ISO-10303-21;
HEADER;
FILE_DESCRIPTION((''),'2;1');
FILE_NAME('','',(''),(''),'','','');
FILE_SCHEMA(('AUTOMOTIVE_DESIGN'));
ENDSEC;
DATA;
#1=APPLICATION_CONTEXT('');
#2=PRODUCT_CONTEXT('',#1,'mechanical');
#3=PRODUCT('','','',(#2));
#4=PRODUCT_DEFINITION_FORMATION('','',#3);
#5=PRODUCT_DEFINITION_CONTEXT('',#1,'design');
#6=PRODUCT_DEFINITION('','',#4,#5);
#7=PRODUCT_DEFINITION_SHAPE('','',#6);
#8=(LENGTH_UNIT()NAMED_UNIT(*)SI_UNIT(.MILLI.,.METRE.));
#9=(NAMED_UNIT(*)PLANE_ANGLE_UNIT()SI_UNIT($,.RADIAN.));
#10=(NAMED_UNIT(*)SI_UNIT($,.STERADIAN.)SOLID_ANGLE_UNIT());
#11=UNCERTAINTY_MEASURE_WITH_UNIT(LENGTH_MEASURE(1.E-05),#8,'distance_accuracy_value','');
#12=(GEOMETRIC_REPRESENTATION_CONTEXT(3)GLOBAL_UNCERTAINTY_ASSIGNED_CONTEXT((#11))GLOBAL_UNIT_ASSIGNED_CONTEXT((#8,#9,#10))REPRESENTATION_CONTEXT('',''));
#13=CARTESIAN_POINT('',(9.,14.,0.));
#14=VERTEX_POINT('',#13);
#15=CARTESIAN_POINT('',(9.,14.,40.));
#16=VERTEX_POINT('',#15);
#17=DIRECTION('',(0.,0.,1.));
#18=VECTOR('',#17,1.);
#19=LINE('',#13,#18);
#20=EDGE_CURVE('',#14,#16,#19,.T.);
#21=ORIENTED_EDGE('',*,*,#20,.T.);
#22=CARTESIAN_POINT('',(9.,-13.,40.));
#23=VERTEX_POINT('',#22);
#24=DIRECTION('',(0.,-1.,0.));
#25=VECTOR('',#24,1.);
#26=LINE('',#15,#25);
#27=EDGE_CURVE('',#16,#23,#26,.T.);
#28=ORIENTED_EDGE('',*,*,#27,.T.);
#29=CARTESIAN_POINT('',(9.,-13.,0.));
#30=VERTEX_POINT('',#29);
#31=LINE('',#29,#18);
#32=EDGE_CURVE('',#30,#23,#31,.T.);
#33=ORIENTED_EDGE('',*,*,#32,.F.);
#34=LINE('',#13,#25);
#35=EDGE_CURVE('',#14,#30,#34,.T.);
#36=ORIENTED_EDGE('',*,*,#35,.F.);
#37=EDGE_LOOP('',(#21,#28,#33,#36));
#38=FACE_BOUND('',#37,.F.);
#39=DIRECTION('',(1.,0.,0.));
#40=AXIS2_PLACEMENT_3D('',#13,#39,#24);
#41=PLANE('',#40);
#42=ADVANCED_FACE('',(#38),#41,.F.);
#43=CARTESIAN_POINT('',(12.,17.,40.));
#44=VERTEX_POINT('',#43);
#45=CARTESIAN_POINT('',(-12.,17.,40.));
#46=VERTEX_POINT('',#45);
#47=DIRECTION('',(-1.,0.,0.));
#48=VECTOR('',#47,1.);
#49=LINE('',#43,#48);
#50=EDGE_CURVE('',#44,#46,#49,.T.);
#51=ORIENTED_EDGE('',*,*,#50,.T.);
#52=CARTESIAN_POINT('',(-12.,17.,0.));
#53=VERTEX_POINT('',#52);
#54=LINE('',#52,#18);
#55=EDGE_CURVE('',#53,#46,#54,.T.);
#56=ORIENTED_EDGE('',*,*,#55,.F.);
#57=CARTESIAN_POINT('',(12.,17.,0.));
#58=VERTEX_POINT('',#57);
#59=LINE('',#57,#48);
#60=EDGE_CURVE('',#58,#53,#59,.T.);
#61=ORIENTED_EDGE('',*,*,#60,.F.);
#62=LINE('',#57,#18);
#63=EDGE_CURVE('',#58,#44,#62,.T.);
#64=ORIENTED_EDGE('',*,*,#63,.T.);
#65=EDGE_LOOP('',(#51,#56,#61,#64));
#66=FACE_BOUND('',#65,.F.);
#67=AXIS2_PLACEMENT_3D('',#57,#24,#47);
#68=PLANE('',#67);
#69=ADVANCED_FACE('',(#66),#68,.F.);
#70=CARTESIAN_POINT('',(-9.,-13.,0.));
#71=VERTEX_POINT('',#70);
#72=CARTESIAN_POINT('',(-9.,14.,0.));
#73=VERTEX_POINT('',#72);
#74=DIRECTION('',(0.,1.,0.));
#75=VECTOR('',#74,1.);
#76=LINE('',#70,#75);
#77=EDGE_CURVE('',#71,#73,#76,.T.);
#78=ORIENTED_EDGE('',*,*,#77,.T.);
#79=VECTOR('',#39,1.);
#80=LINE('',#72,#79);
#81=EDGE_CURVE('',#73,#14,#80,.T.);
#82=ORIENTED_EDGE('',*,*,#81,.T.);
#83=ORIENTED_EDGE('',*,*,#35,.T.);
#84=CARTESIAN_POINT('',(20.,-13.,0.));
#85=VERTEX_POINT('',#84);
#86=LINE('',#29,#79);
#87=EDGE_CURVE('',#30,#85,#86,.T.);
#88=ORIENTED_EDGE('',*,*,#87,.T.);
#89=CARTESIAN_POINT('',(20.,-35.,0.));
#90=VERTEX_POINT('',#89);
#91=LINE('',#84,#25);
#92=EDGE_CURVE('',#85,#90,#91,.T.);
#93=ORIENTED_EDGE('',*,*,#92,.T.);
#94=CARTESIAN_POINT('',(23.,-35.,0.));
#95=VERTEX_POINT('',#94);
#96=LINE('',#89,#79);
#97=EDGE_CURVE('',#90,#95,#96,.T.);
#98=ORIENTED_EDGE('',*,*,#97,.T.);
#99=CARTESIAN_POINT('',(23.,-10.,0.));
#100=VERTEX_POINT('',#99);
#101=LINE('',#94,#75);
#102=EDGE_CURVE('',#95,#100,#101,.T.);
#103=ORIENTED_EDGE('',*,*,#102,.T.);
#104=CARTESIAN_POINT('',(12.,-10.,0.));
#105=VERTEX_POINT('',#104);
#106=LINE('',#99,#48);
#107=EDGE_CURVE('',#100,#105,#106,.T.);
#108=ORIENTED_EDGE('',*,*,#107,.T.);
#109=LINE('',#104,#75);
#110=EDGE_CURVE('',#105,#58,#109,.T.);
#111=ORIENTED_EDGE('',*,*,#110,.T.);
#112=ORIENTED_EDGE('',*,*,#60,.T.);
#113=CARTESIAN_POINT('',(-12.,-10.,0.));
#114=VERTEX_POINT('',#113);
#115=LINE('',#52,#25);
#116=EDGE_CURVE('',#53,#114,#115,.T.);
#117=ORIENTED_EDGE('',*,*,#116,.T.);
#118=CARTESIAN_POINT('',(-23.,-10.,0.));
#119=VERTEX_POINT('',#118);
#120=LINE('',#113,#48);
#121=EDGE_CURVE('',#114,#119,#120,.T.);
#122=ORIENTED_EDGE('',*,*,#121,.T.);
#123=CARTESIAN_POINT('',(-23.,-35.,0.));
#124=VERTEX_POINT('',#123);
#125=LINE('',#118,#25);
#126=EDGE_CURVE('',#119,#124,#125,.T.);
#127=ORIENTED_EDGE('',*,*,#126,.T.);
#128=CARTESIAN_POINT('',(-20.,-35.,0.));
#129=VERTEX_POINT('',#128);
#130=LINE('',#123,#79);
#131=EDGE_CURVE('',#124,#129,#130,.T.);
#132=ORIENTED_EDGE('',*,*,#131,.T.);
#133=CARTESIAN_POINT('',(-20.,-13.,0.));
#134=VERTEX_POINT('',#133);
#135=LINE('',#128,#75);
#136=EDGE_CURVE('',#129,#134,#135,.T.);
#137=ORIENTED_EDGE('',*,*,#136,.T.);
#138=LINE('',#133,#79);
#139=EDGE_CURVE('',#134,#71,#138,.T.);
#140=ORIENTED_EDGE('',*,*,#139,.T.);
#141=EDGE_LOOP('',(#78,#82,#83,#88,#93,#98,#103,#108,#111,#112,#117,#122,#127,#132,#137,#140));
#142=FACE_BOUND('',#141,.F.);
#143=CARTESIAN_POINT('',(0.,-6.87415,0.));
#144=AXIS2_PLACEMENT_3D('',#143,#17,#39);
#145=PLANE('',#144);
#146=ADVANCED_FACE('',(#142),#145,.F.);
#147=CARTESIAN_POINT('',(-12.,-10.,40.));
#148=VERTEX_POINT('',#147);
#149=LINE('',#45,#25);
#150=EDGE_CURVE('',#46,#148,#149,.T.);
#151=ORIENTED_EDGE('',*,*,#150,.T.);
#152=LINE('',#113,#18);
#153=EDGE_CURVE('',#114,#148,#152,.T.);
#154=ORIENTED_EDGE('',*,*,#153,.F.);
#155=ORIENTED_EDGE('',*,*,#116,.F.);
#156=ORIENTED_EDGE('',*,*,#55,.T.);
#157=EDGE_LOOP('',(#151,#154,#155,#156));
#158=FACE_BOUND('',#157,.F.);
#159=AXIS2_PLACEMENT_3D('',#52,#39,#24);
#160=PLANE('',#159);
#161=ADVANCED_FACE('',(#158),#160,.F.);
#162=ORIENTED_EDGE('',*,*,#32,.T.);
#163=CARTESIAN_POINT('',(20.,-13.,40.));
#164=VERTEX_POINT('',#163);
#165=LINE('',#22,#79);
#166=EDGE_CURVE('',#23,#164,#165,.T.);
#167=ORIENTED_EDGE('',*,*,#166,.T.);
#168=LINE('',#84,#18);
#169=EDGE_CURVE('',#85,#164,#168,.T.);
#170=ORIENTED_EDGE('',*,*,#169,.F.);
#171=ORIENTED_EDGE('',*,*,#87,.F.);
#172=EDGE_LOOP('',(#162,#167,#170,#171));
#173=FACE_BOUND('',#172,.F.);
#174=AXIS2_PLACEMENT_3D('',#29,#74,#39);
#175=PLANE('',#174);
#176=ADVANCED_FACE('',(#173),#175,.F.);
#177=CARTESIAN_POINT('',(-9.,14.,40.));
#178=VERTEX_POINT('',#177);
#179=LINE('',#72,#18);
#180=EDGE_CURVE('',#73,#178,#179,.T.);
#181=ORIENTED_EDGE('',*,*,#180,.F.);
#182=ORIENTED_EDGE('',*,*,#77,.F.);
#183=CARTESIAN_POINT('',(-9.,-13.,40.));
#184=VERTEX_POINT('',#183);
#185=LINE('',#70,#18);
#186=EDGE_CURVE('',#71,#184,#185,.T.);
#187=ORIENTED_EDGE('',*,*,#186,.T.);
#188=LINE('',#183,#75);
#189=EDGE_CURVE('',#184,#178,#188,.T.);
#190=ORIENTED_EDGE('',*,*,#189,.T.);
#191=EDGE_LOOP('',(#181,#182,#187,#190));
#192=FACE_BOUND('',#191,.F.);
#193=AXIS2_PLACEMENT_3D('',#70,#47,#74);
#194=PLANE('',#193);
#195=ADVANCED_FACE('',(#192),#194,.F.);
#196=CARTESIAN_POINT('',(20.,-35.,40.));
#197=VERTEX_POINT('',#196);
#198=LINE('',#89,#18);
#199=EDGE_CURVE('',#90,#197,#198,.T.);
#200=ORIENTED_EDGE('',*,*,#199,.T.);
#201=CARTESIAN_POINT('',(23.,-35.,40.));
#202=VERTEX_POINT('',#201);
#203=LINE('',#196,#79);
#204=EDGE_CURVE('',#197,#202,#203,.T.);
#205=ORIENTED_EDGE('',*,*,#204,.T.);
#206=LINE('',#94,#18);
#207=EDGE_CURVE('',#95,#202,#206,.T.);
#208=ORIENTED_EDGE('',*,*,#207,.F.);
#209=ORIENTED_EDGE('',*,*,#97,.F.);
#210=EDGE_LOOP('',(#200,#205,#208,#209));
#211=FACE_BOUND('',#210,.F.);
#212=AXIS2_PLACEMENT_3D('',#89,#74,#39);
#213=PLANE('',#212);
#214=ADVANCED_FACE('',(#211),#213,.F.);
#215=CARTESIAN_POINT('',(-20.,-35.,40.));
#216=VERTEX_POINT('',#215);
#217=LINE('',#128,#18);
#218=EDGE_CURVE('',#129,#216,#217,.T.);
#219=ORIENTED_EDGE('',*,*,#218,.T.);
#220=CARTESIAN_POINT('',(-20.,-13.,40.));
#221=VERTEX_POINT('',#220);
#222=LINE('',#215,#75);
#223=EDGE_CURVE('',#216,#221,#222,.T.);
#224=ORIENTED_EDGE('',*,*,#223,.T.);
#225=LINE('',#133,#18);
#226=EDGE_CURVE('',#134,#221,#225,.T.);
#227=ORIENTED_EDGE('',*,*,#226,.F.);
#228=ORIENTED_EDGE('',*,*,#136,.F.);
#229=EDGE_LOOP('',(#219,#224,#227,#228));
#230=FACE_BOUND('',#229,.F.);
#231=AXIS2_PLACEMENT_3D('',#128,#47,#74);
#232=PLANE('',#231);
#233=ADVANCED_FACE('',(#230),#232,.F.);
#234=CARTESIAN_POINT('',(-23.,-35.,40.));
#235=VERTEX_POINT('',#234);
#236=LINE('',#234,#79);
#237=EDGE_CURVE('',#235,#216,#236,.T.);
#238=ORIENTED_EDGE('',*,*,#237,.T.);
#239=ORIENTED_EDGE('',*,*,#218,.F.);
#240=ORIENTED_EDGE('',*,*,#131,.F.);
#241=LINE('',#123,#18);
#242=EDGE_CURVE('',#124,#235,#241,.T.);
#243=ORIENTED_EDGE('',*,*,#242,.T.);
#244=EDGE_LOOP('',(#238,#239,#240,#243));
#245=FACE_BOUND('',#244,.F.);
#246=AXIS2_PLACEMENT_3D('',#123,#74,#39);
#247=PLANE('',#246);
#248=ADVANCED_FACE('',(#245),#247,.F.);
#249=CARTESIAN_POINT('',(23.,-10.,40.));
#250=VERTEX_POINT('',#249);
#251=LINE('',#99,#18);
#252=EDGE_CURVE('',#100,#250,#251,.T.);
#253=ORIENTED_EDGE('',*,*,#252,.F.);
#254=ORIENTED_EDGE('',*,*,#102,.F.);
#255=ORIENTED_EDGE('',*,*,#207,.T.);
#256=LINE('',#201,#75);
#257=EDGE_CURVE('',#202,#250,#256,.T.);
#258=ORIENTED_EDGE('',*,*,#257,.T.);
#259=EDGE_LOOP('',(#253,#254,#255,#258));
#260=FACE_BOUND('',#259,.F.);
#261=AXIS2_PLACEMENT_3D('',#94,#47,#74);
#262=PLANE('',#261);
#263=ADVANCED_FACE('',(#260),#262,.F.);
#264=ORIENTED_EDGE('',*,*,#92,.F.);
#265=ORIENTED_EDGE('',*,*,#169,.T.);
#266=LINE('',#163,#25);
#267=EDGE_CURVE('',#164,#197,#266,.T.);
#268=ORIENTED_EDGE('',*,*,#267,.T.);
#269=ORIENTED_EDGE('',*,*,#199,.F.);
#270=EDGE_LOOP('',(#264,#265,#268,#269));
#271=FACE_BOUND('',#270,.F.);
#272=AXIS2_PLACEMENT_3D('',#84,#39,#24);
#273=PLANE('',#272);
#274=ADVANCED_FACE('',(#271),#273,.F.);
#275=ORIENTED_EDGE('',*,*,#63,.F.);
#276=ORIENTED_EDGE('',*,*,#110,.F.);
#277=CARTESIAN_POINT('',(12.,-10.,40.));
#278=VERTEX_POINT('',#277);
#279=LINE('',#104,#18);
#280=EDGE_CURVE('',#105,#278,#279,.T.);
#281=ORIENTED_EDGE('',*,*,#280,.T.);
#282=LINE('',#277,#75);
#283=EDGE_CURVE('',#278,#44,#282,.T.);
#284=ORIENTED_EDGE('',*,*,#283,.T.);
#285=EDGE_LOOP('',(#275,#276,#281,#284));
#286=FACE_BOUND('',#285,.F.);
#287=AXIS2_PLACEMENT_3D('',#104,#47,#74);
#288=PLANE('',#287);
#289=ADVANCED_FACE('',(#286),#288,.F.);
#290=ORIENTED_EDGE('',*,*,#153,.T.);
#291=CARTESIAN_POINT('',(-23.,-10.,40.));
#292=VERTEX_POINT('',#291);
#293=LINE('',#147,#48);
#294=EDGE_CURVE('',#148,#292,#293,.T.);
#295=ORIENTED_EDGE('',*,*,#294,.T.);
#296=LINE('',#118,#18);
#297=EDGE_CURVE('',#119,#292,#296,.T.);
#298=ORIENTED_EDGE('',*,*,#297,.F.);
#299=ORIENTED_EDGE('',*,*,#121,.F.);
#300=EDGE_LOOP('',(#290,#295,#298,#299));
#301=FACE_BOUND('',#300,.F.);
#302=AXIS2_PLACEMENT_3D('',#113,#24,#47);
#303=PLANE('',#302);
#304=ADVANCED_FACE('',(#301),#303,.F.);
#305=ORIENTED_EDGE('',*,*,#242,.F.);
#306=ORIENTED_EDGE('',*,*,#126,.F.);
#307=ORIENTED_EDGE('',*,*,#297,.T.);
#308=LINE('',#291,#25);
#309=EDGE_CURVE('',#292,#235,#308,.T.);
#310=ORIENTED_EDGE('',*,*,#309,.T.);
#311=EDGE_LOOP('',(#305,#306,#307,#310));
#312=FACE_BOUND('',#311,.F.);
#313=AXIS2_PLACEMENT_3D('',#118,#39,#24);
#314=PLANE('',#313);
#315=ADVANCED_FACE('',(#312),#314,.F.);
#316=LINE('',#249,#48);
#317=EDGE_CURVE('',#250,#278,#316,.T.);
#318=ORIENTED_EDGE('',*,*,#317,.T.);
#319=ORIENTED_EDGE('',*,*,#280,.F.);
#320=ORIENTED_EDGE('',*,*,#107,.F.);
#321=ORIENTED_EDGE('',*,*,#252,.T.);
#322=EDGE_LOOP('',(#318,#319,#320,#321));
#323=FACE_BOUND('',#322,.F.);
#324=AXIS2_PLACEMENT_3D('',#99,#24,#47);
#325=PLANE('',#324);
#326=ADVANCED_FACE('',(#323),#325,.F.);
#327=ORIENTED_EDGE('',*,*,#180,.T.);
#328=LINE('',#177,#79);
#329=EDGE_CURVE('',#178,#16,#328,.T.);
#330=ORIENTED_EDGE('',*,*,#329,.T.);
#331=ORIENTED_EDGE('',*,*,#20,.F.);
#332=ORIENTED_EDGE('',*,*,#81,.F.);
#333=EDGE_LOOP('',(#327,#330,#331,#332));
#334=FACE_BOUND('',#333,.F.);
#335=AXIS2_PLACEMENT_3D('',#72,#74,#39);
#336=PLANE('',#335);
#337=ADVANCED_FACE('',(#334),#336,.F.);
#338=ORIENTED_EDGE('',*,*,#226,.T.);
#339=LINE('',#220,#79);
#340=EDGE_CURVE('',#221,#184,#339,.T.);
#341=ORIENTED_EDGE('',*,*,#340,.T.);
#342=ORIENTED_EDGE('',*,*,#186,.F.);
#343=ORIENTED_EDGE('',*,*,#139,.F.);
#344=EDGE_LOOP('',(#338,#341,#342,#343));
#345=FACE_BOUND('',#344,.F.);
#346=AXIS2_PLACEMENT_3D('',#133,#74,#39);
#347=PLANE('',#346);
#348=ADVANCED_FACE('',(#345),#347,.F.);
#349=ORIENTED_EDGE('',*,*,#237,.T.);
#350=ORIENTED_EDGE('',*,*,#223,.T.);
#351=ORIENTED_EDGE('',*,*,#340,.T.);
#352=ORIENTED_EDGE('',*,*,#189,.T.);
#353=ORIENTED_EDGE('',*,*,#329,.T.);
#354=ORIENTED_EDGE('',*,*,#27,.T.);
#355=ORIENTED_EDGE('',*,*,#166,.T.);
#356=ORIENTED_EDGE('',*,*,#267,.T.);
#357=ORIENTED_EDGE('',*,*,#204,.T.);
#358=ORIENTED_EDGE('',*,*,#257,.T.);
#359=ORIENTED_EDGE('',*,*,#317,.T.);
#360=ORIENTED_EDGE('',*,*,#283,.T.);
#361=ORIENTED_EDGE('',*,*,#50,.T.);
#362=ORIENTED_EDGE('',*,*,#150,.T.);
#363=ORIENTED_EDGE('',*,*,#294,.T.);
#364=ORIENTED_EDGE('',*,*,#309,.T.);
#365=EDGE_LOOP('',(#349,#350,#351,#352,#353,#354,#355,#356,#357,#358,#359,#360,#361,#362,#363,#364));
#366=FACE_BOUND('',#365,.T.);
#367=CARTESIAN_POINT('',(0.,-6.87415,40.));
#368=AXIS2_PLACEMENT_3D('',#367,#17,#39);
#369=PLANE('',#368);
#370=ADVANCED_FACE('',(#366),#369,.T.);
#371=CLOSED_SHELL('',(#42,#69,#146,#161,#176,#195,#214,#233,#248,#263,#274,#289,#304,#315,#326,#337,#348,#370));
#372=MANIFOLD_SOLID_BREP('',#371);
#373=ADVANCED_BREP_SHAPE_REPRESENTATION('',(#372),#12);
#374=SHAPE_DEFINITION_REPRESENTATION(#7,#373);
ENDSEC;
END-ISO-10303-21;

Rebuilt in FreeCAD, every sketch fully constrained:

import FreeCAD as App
import Part
import Sketcher

V = App.Vector
Q = App.Units.Quantity


def add_polygon(sketch, points):
    """Adds a closed chain of lines whose ends are joined by coincident constraints."""
    first, n = sketch.GeometryCount, len(points)
    for a, b in zip(points, points[1:] + points[:1]):
        sketch.addGeometry(Part.LineSegment(App.Vector(*a, 0), App.Vector(*b, 0)), False)
    for i in range(n):
        sketch.addConstraint(Sketcher.Constraint("Coincident", first + i, 2, first + (i + 1) % n, 1))

doc = App.newDocument("Part")
body = doc.addObject("PartDesign::Body", "Body")

# Sketch on XY plane
sketch1 = doc.addObject("Sketcher::SketchObject", "Sketch")
body.addObject(sketch1)
sketch1.AttachmentSupport = (doc.XY_Plane, [""])
sketch1.MapMode = "FlatFace"
add_polygon(sketch1, [(-9, 14), (9, 14), (9, -13), (20, -13), (20, -35), (23, -35), (23, -10), (12, -10), (12, 17), (-12, 17), (-12, -10), (-23, -10), (-23, -35), (-20, -35), (-20, -13), (-9, -13)])  # lines 0-15
sketch1.addConstraint([
    Sketcher.Constraint("Horizontal", 0),
    Sketcher.Constraint("Vertical", 1),
    Sketcher.Constraint("Horizontal", 2),
    Sketcher.Constraint("Vertical", 3),
    Sketcher.Constraint("Horizontal", 4),
    Sketcher.Constraint("Vertical", 5),
    Sketcher.Constraint("Horizontal", 6),
    Sketcher.Constraint("Vertical", 7),
    Sketcher.Constraint("Horizontal", 8),
    Sketcher.Constraint("Vertical", 9),
    Sketcher.Constraint("Horizontal", 10),
    Sketcher.Constraint("Vertical", 11),
    Sketcher.Constraint("Horizontal", 12),
    Sketcher.Constraint("Vertical", 13),
    Sketcher.Constraint("Horizontal", 14),
    Sketcher.Constraint("Vertical", 15),
    Sketcher.Constraint("Symmetric", 6, 2, 9, 2, -2),
    Sketcher.Constraint("Symmetric", 4, 2, 11, 2, -2),
    Sketcher.Constraint("Symmetric", 2, 2, 13, 2, -2),
    Sketcher.Constraint("Equal", 2, 6),
    Sketcher.Constraint("Equal", 10, 14),
    Sketcher.Constraint("Equal", 1, 7),
    Sketcher.Constraint("DistanceX", 0, 1, 0, 2, Q("18 mm")),
    Sketcher.Constraint("DistanceX", 2, 1, 2, 2, Q("11 mm")),
    Sketcher.Constraint("DistanceX", 4, 1, 4, 2, Q("3 mm")),
    Sketcher.Constraint("DistanceY", 1, 2, 1, 1, Q("27 mm")),
    Sketcher.Constraint("DistanceY", 3, 2, 3, 1, Q("22 mm")),
    Sketcher.Constraint("DistanceY", 5, 1, 5, 2, Q("25 mm")),
    Sketcher.Constraint("DistanceY", -1, 1, 0, 2, Q("14 mm")),
])
pad1 = doc.addObject("PartDesign::Pad", "Pad")
body.addObject(pad1)
pad1.Profile = sketch1
pad1.Length = 40

doc.recompute()
